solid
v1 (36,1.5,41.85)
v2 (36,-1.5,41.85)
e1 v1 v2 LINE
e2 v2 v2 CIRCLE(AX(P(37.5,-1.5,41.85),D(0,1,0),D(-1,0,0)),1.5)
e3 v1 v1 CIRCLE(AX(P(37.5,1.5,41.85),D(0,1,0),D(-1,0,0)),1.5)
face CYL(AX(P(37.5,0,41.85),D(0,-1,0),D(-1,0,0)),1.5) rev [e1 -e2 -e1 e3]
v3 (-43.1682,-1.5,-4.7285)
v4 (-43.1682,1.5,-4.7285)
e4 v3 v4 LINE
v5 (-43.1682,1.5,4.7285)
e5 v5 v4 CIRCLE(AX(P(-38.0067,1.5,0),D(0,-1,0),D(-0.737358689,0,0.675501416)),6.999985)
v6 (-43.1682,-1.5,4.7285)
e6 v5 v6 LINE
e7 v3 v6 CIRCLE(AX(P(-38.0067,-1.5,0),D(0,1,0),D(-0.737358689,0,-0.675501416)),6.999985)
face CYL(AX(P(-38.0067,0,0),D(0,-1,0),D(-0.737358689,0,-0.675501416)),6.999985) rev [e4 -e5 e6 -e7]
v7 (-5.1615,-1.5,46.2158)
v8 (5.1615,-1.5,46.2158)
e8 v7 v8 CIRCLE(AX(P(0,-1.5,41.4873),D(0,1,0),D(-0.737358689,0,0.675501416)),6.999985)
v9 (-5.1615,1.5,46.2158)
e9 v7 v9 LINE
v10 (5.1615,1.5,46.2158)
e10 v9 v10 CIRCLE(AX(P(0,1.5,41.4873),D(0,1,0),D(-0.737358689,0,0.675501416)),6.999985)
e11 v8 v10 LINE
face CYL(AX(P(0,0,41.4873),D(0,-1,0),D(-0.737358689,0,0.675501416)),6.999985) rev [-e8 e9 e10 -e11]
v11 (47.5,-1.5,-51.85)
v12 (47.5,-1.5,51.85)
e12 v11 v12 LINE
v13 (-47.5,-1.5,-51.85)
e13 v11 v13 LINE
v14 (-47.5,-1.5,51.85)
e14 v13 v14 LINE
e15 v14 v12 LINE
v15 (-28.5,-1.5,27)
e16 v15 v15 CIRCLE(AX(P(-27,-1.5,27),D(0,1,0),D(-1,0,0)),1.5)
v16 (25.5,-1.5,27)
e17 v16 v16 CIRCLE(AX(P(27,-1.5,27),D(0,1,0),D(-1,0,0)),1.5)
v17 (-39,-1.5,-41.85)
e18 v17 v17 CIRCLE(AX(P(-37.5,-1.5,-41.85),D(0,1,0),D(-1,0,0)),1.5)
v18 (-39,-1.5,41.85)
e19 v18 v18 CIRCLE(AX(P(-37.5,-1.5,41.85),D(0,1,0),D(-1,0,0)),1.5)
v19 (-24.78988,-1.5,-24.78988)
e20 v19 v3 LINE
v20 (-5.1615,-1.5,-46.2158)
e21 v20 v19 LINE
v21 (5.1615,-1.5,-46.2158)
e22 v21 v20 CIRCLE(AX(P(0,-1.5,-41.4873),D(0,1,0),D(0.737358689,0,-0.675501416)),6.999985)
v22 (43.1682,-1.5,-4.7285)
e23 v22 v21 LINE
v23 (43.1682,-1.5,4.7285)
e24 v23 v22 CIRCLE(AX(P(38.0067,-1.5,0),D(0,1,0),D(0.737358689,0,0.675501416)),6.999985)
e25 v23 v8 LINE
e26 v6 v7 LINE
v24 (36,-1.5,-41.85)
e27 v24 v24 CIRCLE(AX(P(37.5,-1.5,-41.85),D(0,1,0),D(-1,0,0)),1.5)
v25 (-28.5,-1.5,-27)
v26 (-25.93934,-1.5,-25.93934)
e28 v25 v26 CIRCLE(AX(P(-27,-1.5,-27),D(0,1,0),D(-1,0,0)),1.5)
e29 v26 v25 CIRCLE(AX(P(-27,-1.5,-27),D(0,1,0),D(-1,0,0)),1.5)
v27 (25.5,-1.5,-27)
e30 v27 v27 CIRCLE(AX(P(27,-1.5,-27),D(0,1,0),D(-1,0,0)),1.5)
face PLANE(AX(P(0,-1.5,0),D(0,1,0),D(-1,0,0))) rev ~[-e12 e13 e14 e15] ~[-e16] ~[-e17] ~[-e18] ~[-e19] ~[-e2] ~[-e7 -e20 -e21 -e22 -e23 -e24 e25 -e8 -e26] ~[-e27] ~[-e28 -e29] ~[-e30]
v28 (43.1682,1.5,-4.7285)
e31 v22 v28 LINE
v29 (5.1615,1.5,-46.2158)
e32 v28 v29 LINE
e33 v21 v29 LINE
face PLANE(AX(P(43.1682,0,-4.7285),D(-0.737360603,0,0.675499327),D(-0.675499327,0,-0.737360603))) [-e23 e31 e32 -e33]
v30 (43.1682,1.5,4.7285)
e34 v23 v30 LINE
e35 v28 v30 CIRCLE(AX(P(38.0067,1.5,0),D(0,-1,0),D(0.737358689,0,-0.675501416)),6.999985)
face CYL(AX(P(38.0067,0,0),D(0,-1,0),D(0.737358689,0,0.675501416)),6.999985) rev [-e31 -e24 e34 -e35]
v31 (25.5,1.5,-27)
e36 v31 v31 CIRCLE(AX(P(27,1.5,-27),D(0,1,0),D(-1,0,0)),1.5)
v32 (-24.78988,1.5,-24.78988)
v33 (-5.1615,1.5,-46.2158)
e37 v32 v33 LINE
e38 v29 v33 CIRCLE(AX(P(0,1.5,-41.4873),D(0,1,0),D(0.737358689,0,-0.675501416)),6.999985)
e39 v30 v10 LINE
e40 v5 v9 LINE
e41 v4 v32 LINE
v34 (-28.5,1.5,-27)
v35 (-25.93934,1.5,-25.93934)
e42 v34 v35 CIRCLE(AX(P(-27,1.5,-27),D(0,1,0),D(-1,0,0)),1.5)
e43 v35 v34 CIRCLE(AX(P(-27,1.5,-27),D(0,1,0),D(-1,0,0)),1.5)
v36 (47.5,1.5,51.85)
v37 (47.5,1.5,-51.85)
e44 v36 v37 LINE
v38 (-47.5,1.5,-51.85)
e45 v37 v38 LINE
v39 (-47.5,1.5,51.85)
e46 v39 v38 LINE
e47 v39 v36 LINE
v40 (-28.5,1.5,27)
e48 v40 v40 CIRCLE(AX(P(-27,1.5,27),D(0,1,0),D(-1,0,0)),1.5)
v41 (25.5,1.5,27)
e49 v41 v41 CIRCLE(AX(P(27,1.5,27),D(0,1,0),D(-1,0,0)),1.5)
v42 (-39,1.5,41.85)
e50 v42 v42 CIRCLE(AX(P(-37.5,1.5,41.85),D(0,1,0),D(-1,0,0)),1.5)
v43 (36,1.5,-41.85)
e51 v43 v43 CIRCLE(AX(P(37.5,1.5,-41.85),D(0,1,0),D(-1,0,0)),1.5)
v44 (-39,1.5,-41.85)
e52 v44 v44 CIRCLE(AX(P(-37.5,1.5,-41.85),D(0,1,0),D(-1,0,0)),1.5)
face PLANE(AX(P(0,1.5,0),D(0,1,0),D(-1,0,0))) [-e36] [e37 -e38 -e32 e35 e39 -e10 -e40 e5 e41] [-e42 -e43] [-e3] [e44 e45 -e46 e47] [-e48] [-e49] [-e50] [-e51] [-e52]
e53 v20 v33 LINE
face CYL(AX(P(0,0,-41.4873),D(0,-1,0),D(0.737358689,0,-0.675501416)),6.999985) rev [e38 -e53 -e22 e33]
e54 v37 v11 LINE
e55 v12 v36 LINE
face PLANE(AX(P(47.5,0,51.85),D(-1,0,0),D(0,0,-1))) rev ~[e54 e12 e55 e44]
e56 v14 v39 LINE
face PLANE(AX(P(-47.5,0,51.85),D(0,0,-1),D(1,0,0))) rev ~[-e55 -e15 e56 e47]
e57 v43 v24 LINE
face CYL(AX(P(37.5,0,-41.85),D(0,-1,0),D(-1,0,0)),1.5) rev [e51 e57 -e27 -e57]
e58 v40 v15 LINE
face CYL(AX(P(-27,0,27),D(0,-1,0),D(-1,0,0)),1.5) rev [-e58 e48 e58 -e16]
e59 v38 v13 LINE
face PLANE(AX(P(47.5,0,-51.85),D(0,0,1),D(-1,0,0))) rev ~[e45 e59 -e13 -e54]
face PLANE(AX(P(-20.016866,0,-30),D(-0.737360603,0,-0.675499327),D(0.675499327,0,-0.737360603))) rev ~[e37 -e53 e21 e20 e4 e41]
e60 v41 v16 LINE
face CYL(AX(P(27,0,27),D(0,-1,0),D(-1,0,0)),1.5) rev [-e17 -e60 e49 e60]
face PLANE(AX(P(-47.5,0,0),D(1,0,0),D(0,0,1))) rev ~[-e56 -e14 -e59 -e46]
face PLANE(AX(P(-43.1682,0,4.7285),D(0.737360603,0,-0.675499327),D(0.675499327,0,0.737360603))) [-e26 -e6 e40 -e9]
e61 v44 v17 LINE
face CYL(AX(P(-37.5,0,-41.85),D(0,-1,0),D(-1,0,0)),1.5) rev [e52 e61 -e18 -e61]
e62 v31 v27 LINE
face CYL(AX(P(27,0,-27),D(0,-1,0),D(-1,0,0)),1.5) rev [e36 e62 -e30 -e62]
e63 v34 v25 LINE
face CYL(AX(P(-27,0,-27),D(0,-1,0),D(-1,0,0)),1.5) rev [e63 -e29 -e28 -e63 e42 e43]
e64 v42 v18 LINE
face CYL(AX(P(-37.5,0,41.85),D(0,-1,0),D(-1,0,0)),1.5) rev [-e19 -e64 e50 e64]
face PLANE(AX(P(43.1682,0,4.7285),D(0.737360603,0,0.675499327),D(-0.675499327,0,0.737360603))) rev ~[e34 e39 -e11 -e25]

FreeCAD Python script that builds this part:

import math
import FreeCAD as App
import Part
import Sketcher

V = App.Vector
Q = App.Units.Quantity


def add_polygon(sketch, points):
    """Adds a closed chain of lines whose ends are joined by coincident constraints."""
    first, n = sketch.GeometryCount, len(points)
    for a, b in zip(points, points[1:] + points[:1]):
        sketch.addGeometry(Part.LineSegment(App.Vector(*a, 0), App.Vector(*b, 0)), False)
    for i in range(n):
        sketch.addConstraint(Sketcher.Constraint("Coincident", first + i, 2, first + (i + 1) % n, 1))

doc = App.newDocument("Part")
params = doc.addObject("Spreadsheet::Sheet", "Params")
for row, (alias, value) in enumerate([
    ("sketch1_diameter", "3 mm"),
    ("sketch1_radius", "7 mm"),
    ("sketch1_width", "95 mm"),
    ("sketch1_height", "103.7 mm"),
    ("pad1_length", "3 mm"),
], start=1):
    params.set(f"A{row}", alias)
    params.set(f"B{row}", "=" + value)
    params.setAlias(f"B{row}", alias)

body = doc.addObject("PartDesign::Body", "Body")

# Sketch on XZ plane
sketch1 = body.newObject("Sketcher::SketchObject", "Sketch")
sketch1.AttachmentSupport = (doc.getObject("XZ_Plane"), [""])
sketch1.MapMode = "FlatFace"
add_polygon(sketch1, [(-47.5, 51.9), (47.5, 51.9), (47.5, -51.9), (-47.5, -51.9)])  # lines 0-3
sketch1.addGeometry(Part.ArcOfCircle(Part.Circle(V(-38, 0, 0), V(0, 0, 1), 7), math.radians(138), math.radians(222)), False)  # 4
sketch1.addGeometry(Part.LineSegment(V(-43.2, -4.7, 0), V(-24.8, -24.8, 0)), False)  # 5
sketch1.addGeometry(Part.LineSegment(V(-24.8, -24.8, 0), V(-5.2, -46.2, 0)), False)  # 6
sketch1.addGeometry(Part.ArcOfCircle(Part.Circle(V(0, -41.5, 0), V(0, 0, 1), 7), math.radians(-138), math.radians(-42)), False)  # 7
sketch1.addGeometry(Part.LineSegment(V(5.2, -46.2, 0), V(43.2, -4.7, 0)), False)  # 8
sketch1.addGeometry(Part.ArcOfCircle(Part.Circle(V(38, 0, 0), V(0, 0, 1), 7), math.radians(-42), math.radians(42)), False)  # 9
sketch1.addGeometry(Part.LineSegment(V(43.2, 4.7, 0), V(5.2, 46.2, 0)), False)  # 10
sketch1.addGeometry(Part.ArcOfCircle(Part.Circle(V(0, 41.5, 0), V(0, 0, 1), 7), math.radians(42), math.radians(138)), False)  # 11
sketch1.addGeometry(Part.LineSegment(V(-5.2, 46.2, 0), V(-43.2, 4.7, 0)), False)  # 12
sketch1.addGeometry(Part.Circle(V(27, 27, 0), V(0, 0, 1), 1.5), False)  # 13
sketch1.addGeometry(Part.Circle(V(37.5, 41.9, 0), V(0, 0, 1), 1.5), False)  # 14
sketch1.addGeometry(Part.Circle(V(-27, 27, 0), V(0, 0, 1), 1.5), False)  # 15
sketch1.addGeometry(Part.Circle(V(-37.5, 41.9, 0), V(0, 0, 1), 1.5), False)  # 16
sketch1.addGeometry(Part.Circle(V(27, -27, 0), V(0, 0, 1), 1.5), False)  # 17
sketch1.addGeometry(Part.Circle(V(-37.5, -41.9, 0), V(0, 0, 1), 1.5), False)  # 18
sketch1.addGeometry(Part.Circle(V(37.5, -41.9, 0), V(0, 0, 1), 1.5), False)  # 19
sketch1.addGeometry(Part.Circle(V(-27, -27, 0), V(0, 0, 1), 1.5), False)  # 20
sketch1.addConstraint([
    Sketcher.Constraint("Tangent", 4, 2, 5, 1),
    Sketcher.Constraint("Coincident", 5, 2, 6, 1),
    Sketcher.Constraint("Tangent", 6, 2, 7, 1),
    Sketcher.Constraint("Tangent", 7, 2, 8, 1),
    Sketcher.Constraint("Tangent", 8, 2, 9, 1),
    Sketcher.Constraint("Tangent", 9, 2, 10, 1),
    Sketcher.Constraint("Tangent", 10, 2, 11, 1),
    Sketcher.Constraint("Tangent", 11, 2, 12, 1),
    Sketcher.Constraint("Tangent", 12, 2, 4, 1),
    Sketcher.Constraint("Horizontal", 0),
    Sketcher.Constraint("Vertical", 1),
    Sketcher.Constraint("Horizontal", 2),
    Sketcher.Constraint("Vertical", 3),
    Sketcher.Constraint("Equal", 4, 7),
    Sketcher.Constraint("Equal", 7, 9),
    Sketcher.Constraint("Equal", 9, 11),
    Sketcher.Constraint("Equal", 13, 14),
    Sketcher.Constraint("Equal", 14, 15),
    Sketcher.Constraint("Equal", 15, 16),
    Sketcher.Constraint("Equal", 16, 17),
    Sketcher.Constraint("Equal", 17, 18),
    Sketcher.Constraint("Equal", 18, 19),
    Sketcher.Constraint("Equal", 19, 20),
    Sketcher.Constraint("Symmetric", 4, 3, 9, 3, -1, 1),
    Sketcher.Constraint("Symmetric", 7, 3, 11, 3, -1, 1),
    Sketcher.Constraint("Symmetric", 15, 3, 17, 3, -1, 1),
    Sketcher.Constraint("Symmetric", 14, 3, 18, 3, -1, 1),
    Sketcher.Constraint("Symmetric", 16, 3, 19, 3, -1, 1),
    Sketcher.Constraint("Symmetric", 13, 3, 20, 3, -1, 1),
    Sketcher.Constraint("Symmetric", 0, 2, 2, 2, -1, 1),
    Sketcher.Constraint("Symmetric", 13, 3, 15, 3, -2),
    Sketcher.Constraint("Symmetric", 14, 3, 16, 3, -2),
    Sketcher.Constraint("Symmetric", 6, 2, 7, 2, -2),
    Sketcher.Constraint("PointOnObject", 4, 3, -1),
    Sketcher.Constraint("Diameter", 13, Q("3 mm")),
    Sketcher.Constraint("Radius", 4, Q("7 mm")),
    Sketcher.Constraint("DistanceX", 0, 1, 0, 2, Q("95 mm")),
    Sketcher.Constraint("DistanceY", 1, 2, 1, 1, Q("103.7 mm")),
    Sketcher.Constraint("DistanceX", -1, 1, 13, 3, Q("27 mm")),
    Sketcher.Constraint("DistanceY", -1, 1, 13, 3, Q("27 mm")),
    Sketcher.Constraint("DistanceX", 16, 3, 14, 3, Q("75 mm")),
    Sketcher.Constraint("DistanceY", 14, 3, 0, 2, Q("10 mm")),
    Sketcher.Constraint("DistanceX", 5, 2, -1, 1, Q("24.79 mm")),
    Sketcher.Constraint("DistanceY", 5, 2, -1, 1, Q("24.79 mm")),
    Sketcher.Constraint("Distance", 5, Q("27.207 mm")),
])
sketch1.setExpression("Constraints[38]", "Params.sketch1_diameter")
sketch1.setExpression("Constraints[39]", "Params.sketch1_radius")
sketch1.setExpression("Constraints[40]", "Params.sketch1_width")
sketch1.setExpression("Constraints[41]", "Params.sketch1_height")
pad1 = body.newObject("PartDesign::Pad", "Pad")
pad1.Profile = sketch1
pad1.setExpression("Length", "Params.pad1_length")
pad1.Midplane = True

doc.recompute()
